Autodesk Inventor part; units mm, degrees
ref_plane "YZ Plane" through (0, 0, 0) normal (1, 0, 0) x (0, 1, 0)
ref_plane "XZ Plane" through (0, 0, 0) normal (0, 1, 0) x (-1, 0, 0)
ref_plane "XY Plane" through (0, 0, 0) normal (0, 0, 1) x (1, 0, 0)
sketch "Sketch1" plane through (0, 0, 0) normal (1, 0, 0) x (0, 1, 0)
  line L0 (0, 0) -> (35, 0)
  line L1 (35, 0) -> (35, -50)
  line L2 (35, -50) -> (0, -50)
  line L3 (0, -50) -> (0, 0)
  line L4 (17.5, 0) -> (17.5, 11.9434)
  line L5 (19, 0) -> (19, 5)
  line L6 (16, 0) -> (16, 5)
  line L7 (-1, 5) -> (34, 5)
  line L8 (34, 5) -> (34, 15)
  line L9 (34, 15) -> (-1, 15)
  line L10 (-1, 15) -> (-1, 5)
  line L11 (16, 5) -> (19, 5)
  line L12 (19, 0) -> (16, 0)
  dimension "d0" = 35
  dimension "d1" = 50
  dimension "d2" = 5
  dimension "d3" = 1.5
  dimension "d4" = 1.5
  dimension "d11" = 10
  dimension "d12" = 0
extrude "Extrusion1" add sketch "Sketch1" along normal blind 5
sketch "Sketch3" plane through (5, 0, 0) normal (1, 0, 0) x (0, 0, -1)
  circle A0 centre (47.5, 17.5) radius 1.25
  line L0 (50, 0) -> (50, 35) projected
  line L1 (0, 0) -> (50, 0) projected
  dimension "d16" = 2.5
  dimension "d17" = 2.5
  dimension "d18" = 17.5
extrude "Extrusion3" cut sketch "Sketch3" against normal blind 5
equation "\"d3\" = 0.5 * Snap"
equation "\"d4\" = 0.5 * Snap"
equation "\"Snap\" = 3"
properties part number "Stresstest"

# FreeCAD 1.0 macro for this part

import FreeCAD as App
import Part
import Sketcher
from FreeCAD import Vector


def add_polygon(sketch, points):
    """Adds a closed chain of lines whose ends are joined by coincident constraints."""
    first, n = sketch.GeometryCount, len(points)
    for a, b in zip(points, points[1:] + points[:1]):
        sketch.addGeometry(Part.LineSegment(App.Vector(*a, 0), App.Vector(*b, 0)), False)
    for i in range(n):
        sketch.addConstraint(Sketcher.Constraint("Coincident", first + i, 2, first + (i + 1) % n, 1))

doc = App.newDocument("Part")
params = doc.addObject("Spreadsheet::Sheet", "Params")
for row, (alias, value) in enumerate([
    ("sketch1_width", "35 mm"),
    ("sketch1_height", "50 mm"),
    ("sketch1_height2", "5 mm"),
    ("sketch1_height3", "10 mm"),
    ("sketch1_width2", "16 mm"),
    ("pad1_length", "5 mm"),
    ("sketch2_diameter", "2.5 mm"),
    ("pocket1_length", "5 mm"),
], start=1):
    params.set(f"A{row}", alias)
    params.set(f"B{row}", "=" + value)
    params.setAlias(f"B{row}", alias)

body = doc.addObject("PartDesign::Body", "Body")

sketch1 = doc.addObject("Sketcher::SketchObject", "Sketch")
body.addObject(sketch1)
sketch1.AttachmentSupport = (doc.YZ_Plane, [""])
sketch1.MapMode = "FlatFace"
add_polygon(sketch1, [(16, 0), (0, 0), (0, -50), (35, -50), (35, 0), (19, 0), (19, 5), (34, 5), (34, 15), (-1, 15), (-1, 5), (16, 5)])
sketch1.addConstraint([
    Sketcher.Constraint("Horizontal", 0),
    Sketcher.Constraint("Vertical", 1),
    Sketcher.Constraint("Horizontal", 2),
    Sketcher.Constraint("Vertical", 3),
    Sketcher.Constraint("Horizontal", 4),
    Sketcher.Constraint("Vertical", 5),
    Sketcher.Constraint("Horizontal", 6),
    Sketcher.Constraint("Vertical", 7),
    Sketcher.Constraint("Horizontal", 8),
    Sketcher.Constraint("Vertical", 9),
    Sketcher.Constraint("Horizontal", 10),
    Sketcher.Constraint("Vertical", 11),
    Sketcher.Constraint("Coincident", 0, 2, -1, 1),
    Sketcher.Constraint("PointOnObject", 3, 2, -1),
    Sketcher.Constraint("Horizontal", 6, 2, 9, 2),
    Sketcher.Constraint("Equal", 0, 4),
    Sketcher.Constraint("Equal", 2, 8),
    Sketcher.Constraint("DistanceX", 2, 1, 2, 2, 35.0),
    Sketcher.Constraint("DistanceY", 1, 2, 1, 1, 50.0),
    Sketcher.Constraint("DistanceY", 5, 1, 5, 2, 5.0),
    Sketcher.Constraint("DistanceY", 7, 1, 7, 2, 10.0),
    Sketcher.Constraint("DistanceX", 0, 2, 0, 1, 16.0),
    Sketcher.Constraint("DistanceX", 6, 1, 6, 2, 15.0),
])
sketch1.setExpression("Constraints[29]", "Params.sketch1_width")
sketch1.setExpression("Constraints[30]", "Params.sketch1_height")
sketch1.setExpression("Constraints[31]", "Params.sketch1_height2")
sketch1.setExpression("Constraints[32]", "Params.sketch1_height3")
sketch1.setExpression("Constraints[33]", "Params.sketch1_width2")
pad1 = doc.addObject("PartDesign::Pad", "Pad")
body.addObject(pad1)
pad1.Profile = sketch1
pad1.setExpression("Length", "Params.pad1_length")

sketch2 = doc.addObject("Sketcher::SketchObject", "Sketch001")
body.addObject(sketch2)
sketch2.AttachmentSupport = (doc.YZ_Plane, [""])
sketch2.MapMode = "FlatFace"
sketch2.AttachmentOffset = App.Placement(Vector(0, 0, 5), App.Rotation())
sketch2.addGeometry(Part.Circle(Vector(17.5, -47.5, 0), Vector(0, 0, 1), 1.2), False)
sketch2.addConstraint([
    Sketcher.Constraint("Diameter", 0, 2.5),
    Sketcher.Constraint("DistanceX", -1, 1, 0, 3, 17.5),
    Sketcher.Constraint("DistanceY", 0, 3, -1, 1, 47.5),
])
sketch2.setExpression("Constraints[0]", "Params.sketch2_diameter")
pocket1 = doc.addObject("PartDesign::Pocket", "Pocket")
body.addObject(pocket1)
pocket1.Profile = sketch2
pocket1.setExpression("Length", "Params.pocket1_length")

doc.recompute()
